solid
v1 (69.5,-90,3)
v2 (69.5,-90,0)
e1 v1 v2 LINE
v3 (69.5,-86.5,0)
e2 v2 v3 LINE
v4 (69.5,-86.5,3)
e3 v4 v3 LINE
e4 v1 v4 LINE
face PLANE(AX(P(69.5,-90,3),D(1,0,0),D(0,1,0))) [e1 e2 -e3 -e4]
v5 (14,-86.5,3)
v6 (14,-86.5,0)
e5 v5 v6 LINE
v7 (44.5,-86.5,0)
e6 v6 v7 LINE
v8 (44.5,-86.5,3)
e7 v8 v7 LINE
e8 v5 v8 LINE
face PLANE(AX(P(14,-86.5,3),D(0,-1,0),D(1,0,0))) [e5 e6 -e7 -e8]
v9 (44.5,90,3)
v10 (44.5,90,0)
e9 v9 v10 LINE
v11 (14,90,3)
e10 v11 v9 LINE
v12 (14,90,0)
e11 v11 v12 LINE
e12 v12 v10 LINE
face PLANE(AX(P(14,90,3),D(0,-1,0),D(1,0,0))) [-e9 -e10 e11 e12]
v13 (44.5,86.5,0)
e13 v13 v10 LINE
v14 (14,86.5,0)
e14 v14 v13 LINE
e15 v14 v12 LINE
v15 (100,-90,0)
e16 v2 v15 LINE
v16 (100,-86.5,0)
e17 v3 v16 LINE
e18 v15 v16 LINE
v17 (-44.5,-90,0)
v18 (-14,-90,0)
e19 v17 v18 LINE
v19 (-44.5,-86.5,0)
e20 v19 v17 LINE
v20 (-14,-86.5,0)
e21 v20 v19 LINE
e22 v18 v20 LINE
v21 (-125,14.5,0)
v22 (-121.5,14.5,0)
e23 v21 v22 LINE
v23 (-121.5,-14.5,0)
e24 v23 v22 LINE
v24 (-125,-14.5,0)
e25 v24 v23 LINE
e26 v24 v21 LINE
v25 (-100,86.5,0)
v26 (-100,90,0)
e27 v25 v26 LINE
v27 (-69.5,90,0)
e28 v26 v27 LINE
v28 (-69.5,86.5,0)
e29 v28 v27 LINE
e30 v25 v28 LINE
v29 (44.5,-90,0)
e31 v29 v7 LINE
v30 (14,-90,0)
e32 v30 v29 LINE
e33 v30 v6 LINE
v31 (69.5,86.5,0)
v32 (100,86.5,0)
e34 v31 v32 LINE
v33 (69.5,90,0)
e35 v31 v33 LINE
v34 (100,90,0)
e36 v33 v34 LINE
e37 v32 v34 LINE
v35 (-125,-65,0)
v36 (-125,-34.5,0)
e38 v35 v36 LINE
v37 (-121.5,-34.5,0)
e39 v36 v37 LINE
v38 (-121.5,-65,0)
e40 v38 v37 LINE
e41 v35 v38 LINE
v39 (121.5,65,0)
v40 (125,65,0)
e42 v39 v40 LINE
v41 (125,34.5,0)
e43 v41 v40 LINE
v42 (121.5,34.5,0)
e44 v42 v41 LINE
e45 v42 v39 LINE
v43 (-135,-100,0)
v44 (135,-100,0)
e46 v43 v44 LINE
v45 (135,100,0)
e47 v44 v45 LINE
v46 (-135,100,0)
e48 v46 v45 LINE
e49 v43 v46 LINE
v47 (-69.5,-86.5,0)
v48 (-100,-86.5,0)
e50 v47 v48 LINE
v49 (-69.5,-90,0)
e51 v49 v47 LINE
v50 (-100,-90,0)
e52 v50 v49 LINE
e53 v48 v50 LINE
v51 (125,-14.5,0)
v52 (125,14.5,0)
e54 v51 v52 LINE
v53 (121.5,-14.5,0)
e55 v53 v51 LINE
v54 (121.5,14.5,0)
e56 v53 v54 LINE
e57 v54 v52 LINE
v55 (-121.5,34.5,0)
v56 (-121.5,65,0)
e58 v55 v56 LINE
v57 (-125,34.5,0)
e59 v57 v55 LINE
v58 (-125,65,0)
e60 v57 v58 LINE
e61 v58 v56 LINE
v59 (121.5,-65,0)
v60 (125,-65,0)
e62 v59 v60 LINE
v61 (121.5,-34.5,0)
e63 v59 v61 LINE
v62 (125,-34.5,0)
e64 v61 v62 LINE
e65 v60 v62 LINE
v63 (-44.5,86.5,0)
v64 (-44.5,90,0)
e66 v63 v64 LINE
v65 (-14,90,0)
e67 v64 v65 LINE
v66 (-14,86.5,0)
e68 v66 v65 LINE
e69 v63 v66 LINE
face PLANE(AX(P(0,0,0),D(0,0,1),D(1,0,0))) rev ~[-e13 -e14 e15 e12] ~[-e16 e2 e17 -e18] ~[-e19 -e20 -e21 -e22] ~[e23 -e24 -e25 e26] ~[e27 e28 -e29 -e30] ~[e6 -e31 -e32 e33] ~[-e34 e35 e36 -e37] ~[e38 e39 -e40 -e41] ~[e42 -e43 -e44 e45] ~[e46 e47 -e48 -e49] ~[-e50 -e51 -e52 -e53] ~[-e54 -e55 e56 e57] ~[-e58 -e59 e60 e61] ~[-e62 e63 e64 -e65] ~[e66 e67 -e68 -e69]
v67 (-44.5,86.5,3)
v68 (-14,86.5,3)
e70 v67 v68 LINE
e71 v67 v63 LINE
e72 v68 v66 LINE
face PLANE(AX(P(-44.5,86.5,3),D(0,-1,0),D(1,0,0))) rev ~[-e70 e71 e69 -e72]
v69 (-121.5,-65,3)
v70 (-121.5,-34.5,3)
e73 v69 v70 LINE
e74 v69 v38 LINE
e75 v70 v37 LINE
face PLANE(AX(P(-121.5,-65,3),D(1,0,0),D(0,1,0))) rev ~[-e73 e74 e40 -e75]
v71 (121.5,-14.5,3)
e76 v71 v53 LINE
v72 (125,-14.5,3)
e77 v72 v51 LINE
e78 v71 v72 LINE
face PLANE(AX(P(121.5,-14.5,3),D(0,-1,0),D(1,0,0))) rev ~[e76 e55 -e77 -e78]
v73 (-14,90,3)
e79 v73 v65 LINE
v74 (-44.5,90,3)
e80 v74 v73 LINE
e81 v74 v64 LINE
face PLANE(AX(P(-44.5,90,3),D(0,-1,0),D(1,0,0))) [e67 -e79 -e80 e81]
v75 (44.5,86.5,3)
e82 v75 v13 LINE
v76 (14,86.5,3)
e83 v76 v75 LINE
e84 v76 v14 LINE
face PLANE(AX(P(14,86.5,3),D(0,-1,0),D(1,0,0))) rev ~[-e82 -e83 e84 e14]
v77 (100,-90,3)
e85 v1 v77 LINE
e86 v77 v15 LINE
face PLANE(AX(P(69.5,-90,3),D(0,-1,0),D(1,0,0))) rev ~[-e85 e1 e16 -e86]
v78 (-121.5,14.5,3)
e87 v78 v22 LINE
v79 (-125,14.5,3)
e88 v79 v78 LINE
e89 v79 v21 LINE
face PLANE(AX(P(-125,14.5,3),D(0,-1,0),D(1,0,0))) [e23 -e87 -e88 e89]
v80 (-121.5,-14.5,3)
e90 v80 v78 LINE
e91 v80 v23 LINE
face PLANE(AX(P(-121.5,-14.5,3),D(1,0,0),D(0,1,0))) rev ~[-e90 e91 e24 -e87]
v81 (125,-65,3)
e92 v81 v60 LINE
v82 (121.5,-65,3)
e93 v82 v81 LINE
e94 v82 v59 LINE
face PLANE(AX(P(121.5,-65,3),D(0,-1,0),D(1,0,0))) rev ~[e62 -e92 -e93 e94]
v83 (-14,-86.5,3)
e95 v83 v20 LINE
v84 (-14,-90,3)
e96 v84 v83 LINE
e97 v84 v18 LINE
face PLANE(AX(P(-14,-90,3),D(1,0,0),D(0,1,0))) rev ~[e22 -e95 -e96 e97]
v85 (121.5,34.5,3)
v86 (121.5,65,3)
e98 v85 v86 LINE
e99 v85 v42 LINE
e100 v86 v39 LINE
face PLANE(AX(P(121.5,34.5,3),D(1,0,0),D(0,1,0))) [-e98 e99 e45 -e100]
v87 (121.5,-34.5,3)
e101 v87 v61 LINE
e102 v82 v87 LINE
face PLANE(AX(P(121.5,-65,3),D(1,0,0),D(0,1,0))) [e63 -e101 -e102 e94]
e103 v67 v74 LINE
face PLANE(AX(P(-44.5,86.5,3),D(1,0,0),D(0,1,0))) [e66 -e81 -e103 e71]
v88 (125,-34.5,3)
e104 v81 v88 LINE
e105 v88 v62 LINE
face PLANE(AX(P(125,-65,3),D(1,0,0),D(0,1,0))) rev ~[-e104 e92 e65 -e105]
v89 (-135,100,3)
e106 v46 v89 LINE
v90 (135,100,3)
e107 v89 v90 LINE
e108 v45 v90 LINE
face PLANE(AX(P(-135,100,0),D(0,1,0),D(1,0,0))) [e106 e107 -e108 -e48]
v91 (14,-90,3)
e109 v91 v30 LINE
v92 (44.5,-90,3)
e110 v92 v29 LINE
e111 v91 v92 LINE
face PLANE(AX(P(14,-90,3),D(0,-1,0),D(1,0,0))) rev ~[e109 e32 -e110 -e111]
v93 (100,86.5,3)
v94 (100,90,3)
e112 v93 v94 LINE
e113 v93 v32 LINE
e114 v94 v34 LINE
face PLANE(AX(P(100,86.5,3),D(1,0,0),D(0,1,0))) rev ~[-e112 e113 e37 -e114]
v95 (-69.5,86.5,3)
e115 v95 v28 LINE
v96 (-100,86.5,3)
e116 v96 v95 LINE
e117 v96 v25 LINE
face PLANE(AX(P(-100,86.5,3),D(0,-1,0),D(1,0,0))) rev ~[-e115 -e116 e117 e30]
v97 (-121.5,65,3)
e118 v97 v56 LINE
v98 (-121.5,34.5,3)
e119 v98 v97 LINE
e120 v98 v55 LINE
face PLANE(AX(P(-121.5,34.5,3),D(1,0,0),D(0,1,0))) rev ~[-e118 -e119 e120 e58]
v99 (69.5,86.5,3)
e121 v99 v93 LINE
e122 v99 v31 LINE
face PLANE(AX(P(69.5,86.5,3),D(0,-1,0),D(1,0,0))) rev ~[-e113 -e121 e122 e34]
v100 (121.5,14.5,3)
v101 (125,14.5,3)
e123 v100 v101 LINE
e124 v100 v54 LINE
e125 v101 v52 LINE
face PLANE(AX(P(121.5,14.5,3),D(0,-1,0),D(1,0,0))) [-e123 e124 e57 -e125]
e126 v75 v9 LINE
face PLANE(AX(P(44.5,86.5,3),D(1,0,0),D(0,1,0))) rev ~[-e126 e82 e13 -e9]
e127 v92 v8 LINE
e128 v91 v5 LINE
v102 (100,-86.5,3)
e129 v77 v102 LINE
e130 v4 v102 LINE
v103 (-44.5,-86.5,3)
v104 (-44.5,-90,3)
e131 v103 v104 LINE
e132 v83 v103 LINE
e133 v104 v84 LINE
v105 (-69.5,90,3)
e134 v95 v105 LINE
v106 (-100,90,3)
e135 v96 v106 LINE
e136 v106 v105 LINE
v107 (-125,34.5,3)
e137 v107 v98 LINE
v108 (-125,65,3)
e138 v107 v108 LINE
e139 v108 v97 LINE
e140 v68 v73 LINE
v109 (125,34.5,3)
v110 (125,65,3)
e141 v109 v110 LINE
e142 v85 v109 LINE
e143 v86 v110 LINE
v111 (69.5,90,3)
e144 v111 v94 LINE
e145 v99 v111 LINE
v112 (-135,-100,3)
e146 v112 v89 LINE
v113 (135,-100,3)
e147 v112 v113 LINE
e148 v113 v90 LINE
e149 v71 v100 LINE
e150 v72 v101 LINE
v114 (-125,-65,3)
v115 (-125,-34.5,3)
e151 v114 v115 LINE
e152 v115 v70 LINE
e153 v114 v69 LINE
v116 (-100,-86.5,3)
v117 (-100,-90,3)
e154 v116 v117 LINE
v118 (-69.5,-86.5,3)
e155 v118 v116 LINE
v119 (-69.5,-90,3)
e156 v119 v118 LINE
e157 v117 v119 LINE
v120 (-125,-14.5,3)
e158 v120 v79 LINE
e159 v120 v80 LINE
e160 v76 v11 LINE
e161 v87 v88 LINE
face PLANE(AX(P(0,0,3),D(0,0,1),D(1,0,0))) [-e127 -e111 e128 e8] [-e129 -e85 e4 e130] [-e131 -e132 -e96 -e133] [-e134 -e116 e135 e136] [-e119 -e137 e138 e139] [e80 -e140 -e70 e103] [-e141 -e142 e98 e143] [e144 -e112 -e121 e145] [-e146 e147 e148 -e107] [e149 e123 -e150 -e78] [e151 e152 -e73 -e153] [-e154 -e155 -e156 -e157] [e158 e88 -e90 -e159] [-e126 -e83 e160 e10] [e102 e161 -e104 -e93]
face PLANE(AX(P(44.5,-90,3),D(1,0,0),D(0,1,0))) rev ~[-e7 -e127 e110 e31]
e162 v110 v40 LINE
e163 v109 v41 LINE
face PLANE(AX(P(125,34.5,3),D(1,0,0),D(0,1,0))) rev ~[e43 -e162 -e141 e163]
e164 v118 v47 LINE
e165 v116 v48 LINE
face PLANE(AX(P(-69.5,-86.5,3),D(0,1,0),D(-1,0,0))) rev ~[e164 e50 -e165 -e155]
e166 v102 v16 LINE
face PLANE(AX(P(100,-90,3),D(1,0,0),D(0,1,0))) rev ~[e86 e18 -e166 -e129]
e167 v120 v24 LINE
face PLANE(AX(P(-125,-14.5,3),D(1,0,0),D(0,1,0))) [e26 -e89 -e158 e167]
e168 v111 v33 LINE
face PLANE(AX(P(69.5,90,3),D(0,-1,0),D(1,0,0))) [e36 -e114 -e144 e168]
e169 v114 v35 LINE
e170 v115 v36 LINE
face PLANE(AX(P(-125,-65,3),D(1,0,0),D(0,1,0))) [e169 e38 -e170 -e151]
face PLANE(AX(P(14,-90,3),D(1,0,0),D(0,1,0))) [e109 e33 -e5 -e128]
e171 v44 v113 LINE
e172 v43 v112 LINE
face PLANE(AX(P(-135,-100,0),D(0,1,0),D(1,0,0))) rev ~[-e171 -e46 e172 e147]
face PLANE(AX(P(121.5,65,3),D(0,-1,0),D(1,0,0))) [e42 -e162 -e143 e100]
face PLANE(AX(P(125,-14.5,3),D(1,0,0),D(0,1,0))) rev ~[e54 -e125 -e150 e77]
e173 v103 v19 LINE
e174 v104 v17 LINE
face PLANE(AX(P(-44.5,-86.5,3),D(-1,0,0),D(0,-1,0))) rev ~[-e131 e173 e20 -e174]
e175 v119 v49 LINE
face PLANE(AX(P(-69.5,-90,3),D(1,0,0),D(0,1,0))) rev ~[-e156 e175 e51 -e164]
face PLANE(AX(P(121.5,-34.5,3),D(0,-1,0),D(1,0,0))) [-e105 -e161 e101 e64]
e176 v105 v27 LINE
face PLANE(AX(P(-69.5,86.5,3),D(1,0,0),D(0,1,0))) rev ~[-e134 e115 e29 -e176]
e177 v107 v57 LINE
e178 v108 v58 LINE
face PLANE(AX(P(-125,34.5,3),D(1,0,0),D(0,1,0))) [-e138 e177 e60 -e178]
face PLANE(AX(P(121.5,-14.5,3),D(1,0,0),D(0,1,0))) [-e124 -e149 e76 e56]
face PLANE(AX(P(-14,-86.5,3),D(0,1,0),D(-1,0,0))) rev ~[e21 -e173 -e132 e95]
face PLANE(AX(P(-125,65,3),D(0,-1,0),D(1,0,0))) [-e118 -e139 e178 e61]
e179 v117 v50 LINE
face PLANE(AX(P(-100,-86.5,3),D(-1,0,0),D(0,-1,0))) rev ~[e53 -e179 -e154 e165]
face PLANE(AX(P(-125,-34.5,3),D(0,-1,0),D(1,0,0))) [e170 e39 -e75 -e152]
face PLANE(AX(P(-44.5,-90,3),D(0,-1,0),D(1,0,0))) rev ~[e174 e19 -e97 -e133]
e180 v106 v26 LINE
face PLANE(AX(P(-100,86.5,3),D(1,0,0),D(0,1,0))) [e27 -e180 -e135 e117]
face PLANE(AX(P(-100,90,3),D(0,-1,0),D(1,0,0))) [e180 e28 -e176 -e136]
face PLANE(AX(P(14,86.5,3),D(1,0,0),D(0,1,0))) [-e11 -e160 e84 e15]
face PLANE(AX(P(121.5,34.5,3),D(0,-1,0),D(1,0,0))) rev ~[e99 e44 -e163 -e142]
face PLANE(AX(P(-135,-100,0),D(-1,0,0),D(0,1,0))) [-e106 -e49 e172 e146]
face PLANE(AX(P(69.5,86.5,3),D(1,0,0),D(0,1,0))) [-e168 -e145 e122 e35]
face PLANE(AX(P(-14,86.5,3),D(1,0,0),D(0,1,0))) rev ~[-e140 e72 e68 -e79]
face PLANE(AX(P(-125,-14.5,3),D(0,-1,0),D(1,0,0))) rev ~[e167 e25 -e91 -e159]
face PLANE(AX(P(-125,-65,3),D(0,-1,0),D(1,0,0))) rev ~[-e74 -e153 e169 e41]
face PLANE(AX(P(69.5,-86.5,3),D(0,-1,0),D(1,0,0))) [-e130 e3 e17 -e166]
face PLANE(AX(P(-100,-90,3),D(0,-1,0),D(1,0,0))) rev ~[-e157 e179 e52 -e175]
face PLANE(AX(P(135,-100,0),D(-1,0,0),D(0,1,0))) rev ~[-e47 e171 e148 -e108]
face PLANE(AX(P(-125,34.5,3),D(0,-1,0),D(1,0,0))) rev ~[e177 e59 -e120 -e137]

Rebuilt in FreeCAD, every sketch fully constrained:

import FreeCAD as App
import Part
import Sketcher
from FreeCAD import Vector
Q = App.Units.Quantity


def add_polygon(sketch, points):
    """Adds a closed chain of lines whose ends are joined by coincident constraints."""
    first, n = sketch.GeometryCount, len(points)
    for a, b in zip(points, points[1:] + points[:1]):
        sketch.addGeometry(Part.LineSegment(App.Vector(*a, 0), App.Vector(*b, 0)), False)
    for i in range(n):
        sketch.addConstraint(Sketcher.Constraint("Coincident", first + i, 2, first + (i + 1) % n, 1))

doc = App.newDocument("Part")
body = doc.addObject("PartDesign::Body", "Body")

# Sketch on XY plane
sketch1 = body.newObject("Sketcher::SketchObject", "Sketch")
sketch1.AttachmentSupport = (doc.getObject("XY_Plane"), [""])
sketch1.MapMode = "FlatFace"
add_polygon(sketch1, [(-135, 100), (-135, -100), (135, -100), (135, 100)])  # lines 0-3
sketch1.addConstraint(Sketcher.Constraint("Vertical", 0))
sketch1.addConstraint(Sketcher.Constraint("Horizontal", 1))
sketch1.addConstraint(Sketcher.Constraint("Vertical", 2))
sketch1.addConstraint(Sketcher.Constraint("Horizontal", 3))
sketch1.addConstraint(Sketcher.Constraint("Symmetric", 0, 2, 2, 2, -1, 1))
sketch1.addConstraint(Sketcher.Constraint("DistanceX", 1, 1, 1, 2, Q("270 mm")))
sketch1.addConstraint(Sketcher.Constraint("DistanceY", 0, 2, 0, 1, Q("200 mm")))
pad1 = body.newObject("PartDesign::Pad", "Pad")
pad1.Profile = sketch1
pad1.Length = 3

# Sketch on XY plane
sketch2 = body.newObject("Sketcher::SketchObject", "Sketch001")
sketch2.AttachmentSupport = (doc.getObject("XY_Plane"), [""])
sketch2.MapMode = "FlatFace"
sketch2.AttachmentOffset = App.Placement(Vector(0, 0, 3), App.Rotation())
add_polygon(sketch2, [(69.5, 90), (69.5, 86.5), (100, 86.5), (100, 90)])  # lines 0-3
add_polygon(sketch2, [(14, 90), (14, 86.5), (44.5, 86.5), (44.5, 90)])  # lines 4-7
add_polygon(sketch2, [(121.5, 65), (121.5, 34.5), (125, 34.5), (125, 65)])  # lines 8-11
add_polygon(sketch2, [(-100, 90), (-100, 86.5), (-69.5, 86.5), (-69.5, 90)])  # lines 12-15
add_polygon(sketch2, [(-44.5, 90), (-44.5, 86.5), (-14, 86.5), (-14, 90)])  # lines 16-19
add_polygon(sketch2, [(-100, -90), (-69.5, -90), (-69.5, -86.5), (-100, -86.5)])  # lines 20-23
add_polygon(sketch2, [(14, -86.5), (14, -90), (44.5, -90), (44.5, -86.5)])  # lines 24-27
add_polygon(sketch2, [(-44.5, -90), (-14, -90), (-14, -86.5), (-44.5, -86.5)])  # lines 28-31
add_polygon(sketch2, [(69.5, -86.5), (69.5, -90), (100, -90), (100, -86.5)])  # lines 32-35
add_polygon(sketch2, [(121.5, -34.5), (121.5, -65), (125, -65), (125, -34.5)])  # lines 36-39
add_polygon(sketch2, [(-125, -34.5), (-125, -65), (-121.5, -65), (-121.5, -34.5)])  # lines 40-43
add_polygon(sketch2, [(-125, 65), (-125, 34.5), (-121.5, 34.5), (-121.5, 65)])  # lines 44-47
add_polygon(sketch2, [(121.5, 14.5), (121.5, -14.5), (125, -14.5), (125, 14.5)])  # lines 48-51
add_polygon(sketch2, [(-125, 14.5), (-125, -14.5), (-121.5, -14.5), (-121.5, 14.5)])  # lines 52-55
sketch2.addConstraint(Sketcher.Constraint("Vertical", 0))
sketch2.addConstraint(Sketcher.Constraint("Horizontal", 1))
sketch2.addConstraint(Sketcher.Constraint("Vertical", 2))
sketch2.addConstraint(Sketcher.Constraint("Horizontal", 3))
sketch2.addConstraint(Sketcher.Constraint("Vertical", 4))
sketch2.addConstraint(Sketcher.Constraint("Horizontal", 5))
sketch2.addConstraint(Sketcher.Constraint("Vertical", 6))
sketch2.addConstraint(Sketcher.Constraint("Horizontal", 7))
sketch2.addConstraint(Sketcher.Constraint("Vertical", 8))
sketch2.addConstraint(Sketcher.Constraint("Horizontal", 9))
sketch2.addConstraint(Sketcher.Constraint("Vertical", 10))
sketch2.addConstraint(Sketcher.Constraint("Horizontal", 11))
sketch2.addConstraint(Sketcher.Constraint("Vertical", 12))
sketch2.addConstraint(Sketcher.Constraint("Horizontal", 13))
sketch2.addConstraint(Sketcher.Constraint("Vertical", 14))
sketch2.addConstraint(Sketcher.Constraint("Horizontal", 15))
sketch2.addConstraint(Sketcher.Constraint("Vertical", 16))
sketch2.addConstraint(Sketcher.Constraint("Horizontal", 17))
sketch2.addConstraint(Sketcher.Constraint("Vertical", 18))
sketch2.addConstraint(Sketcher.Constraint("Horizontal", 19))
sketch2.addConstraint(Sketcher.Constraint("Horizontal", 20))
sketch2.addConstraint(Sketcher.Constraint("Vertical", 21))
sketch2.addConstraint(Sketcher.Constraint("Horizontal", 22))
sketch2.addConstraint(Sketcher.Constraint("Vertical", 23))
sketch2.addConstraint(Sketcher.Constraint("Vertical", 24))
sketch2.addConstraint(Sketcher.Constraint("Horizontal", 25))
sketch2.addConstraint(Sketcher.Constraint("Vertical", 26))
sketch2.addConstraint(Sketcher.Constraint("Horizontal", 27))
sketch2.addConstraint(Sketcher.Constraint("Horizontal", 28))
sketch2.addConstraint(Sketcher.Constraint("Vertical", 29))
sketch2.addConstraint(Sketcher.Constraint("Horizontal", 30))
sketch2.addConstraint(Sketcher.Constraint("Vertical", 31))
sketch2.addConstraint(Sketcher.Constraint("Vertical", 32))
sketch2.addConstraint(Sketcher.Constraint("Horizontal", 33))
sketch2.addConstraint(Sketcher.Constraint("Vertical", 34))
sketch2.addConstraint(Sketcher.Constraint("Horizontal", 35))
sketch2.addConstraint(Sketcher.Constraint("Vertical", 36))
sketch2.addConstraint(Sketcher.Constraint("Horizontal", 37))
sketch2.addConstraint(Sketcher.Constraint("Vertical", 38))
sketch2.addConstraint(Sketcher.Constraint("Horizontal", 39))
sketch2.addConstraint(Sketcher.Constraint("Vertical", 40))
sketch2.addConstraint(Sketcher.Constraint("Horizontal", 41))
sketch2.addConstraint(Sketcher.Constraint("Vertical", 42))
sketch2.addConstraint(Sketcher.Constraint("Horizontal", 43))
sketch2.addConstraint(Sketcher.Constraint("Vertical", 44))
sketch2.addConstraint(Sketcher.Constraint("Horizontal", 45))
sketch2.addConstraint(Sketcher.Constraint("Vertical", 46))
sketch2.addConstraint(Sketcher.Constraint("Horizontal", 47))
sketch2.addConstraint(Sketcher.Constraint("Vertical", 48))
sketch2.addConstraint(Sketcher.Constraint("Horizontal", 49))
sketch2.addConstraint(Sketcher.Constraint("Vertical", 50))
sketch2.addConstraint(Sketcher.Constraint("Horizontal", 51))
sketch2.addConstraint(Sketcher.Constraint("Vertical", 52))
sketch2.addConstraint(Sketcher.Constraint("Horizontal", 53))
sketch2.addConstraint(Sketcher.Constraint("Vertical", 54))
sketch2.addConstraint(Sketcher.Constraint("Horizontal", 55))
sketch2.addConstraint(Sketcher.Constraint("Symmetric", 3, 2, 20, 2, -1, 1))
sketch2.addConstraint(Sketcher.Constraint("Symmetric", 1, 2, 22, 2, -1, 1))
sketch2.addConstraint(Sketcher.Constraint("Symmetric", 18, 2, 24, 2, -1, 1))
sketch2.addConstraint(Sketcher.Constraint("Symmetric", 16, 2, 26, 2, -1, 1))
sketch2.addConstraint(Sketcher.Constraint("Symmetric", 7, 2, 28, 2, -1, 1))
sketch2.addConstraint(Sketcher.Constraint("Symmetric", 5, 2, 30, 2, -1, 1))
sketch2.addConstraint(Sketcher.Constraint("Symmetric", 14, 2, 32, 2, -1, 1))
sketch2.addConstraint(Sketcher.Constraint("Symmetric", 12, 2, 34, 2, -1, 1))
sketch2.addConstraint(Sketcher.Constraint("Symmetric", 10, 2, 40, 2, -1, 1))
sketch2.addConstraint(Sketcher.Constraint("Symmetric", 8, 2, 42, 2, -1, 1))
sketch2.addConstraint(Sketcher.Constraint("Symmetric", 38, 2, 44, 2, -1, 1))
sketch2.addConstraint(Sketcher.Constraint("Symmetric", 36, 2, 46, 2, -1, 1))
sketch2.addConstraint(Sketcher.Constraint("Symmetric", 50, 2, 52, 2, -1, 1))
sketch2.addConstraint(Sketcher.Constraint("Symmetric", 48, 2, 54, 2, -1, 1))
sketch2.addConstraint(Sketcher.Constraint("Symmetric", 1, 2, 12, 2, -2))
sketch2.addConstraint(Sketcher.Constraint("Symmetric", 3, 2, 14, 2, -2))
sketch2.addConstraint(Sketcher.Constraint("Symmetric", 5, 2, 16, 2, -2))
sketch2.addConstraint(Sketcher.Constraint("Symmetric", 7, 2, 18, 2, -2))
sketch2.addConstraint(Sketcher.Constraint("Symmetric", 37, 2, 40, 2, -2))
sketch2.addConstraint(Sketcher.Constraint("Symmetric", 39, 2, 42, 2, -2))
sketch2.addConstraint(Sketcher.Constraint("Horizontal", 1, 2, 4, 2))
sketch2.addConstraint(Sketcher.Constraint("Horizontal", 3, 2, 6, 2))
sketch2.addConstraint(Sketcher.Constraint("Horizontal", 49, 2, 52, 2))
sketch2.addConstraint(Sketcher.Constraint("Vertical", 39, 2, 48, 2))
sketch2.addConstraint(Sketcher.Constraint("Vertical", 38, 2, 49, 2))
sketch2.addConstraint(Sketcher.Constraint("Equal", 3, 5))
sketch2.addConstraint(Sketcher.Constraint("Equal", 55, 0))
sketch2.addConstraint(Sketcher.Constraint("Equal", 35, 8))
sketch2.addConstraint(Sketcher.Constraint("DistanceY", 48, 2, 48, 1, Q("29 mm")))
sketch2.addConstraint(Sketcher.Constraint("DistanceX", 1, 1, 1, 2, Q("30.5 mm")))
sketch2.addConstraint(Sketcher.Constraint("DistanceX", 9, 1, 9, 2, Q("3.5 mm")))
sketch2.addConstraint(Sketcher.Constraint("DistanceX", -1, 1, 1, 2, Q("100 mm")))
sketch2.addConstraint(Sketcher.Constraint("DistanceY", -1, 1, 2, 2, Q("90 mm")))
sketch2.addConstraint(Sketcher.Constraint("DistanceX", -1, 1, 4, 2, Q("14 mm")))
sketch2.addConstraint(Sketcher.Constraint("DistanceX", -1, 1, 9, 2, Q("125 mm")))
sketch2.addConstraint(Sketcher.Constraint("DistanceY", -1, 1, 10, 2, Q("65 mm")))
pocket1 = body.newObject("PartDesign::Pocket", "Pocket")
pocket1.Profile = sketch2
pocket1.Length = 3

doc.recompute()
